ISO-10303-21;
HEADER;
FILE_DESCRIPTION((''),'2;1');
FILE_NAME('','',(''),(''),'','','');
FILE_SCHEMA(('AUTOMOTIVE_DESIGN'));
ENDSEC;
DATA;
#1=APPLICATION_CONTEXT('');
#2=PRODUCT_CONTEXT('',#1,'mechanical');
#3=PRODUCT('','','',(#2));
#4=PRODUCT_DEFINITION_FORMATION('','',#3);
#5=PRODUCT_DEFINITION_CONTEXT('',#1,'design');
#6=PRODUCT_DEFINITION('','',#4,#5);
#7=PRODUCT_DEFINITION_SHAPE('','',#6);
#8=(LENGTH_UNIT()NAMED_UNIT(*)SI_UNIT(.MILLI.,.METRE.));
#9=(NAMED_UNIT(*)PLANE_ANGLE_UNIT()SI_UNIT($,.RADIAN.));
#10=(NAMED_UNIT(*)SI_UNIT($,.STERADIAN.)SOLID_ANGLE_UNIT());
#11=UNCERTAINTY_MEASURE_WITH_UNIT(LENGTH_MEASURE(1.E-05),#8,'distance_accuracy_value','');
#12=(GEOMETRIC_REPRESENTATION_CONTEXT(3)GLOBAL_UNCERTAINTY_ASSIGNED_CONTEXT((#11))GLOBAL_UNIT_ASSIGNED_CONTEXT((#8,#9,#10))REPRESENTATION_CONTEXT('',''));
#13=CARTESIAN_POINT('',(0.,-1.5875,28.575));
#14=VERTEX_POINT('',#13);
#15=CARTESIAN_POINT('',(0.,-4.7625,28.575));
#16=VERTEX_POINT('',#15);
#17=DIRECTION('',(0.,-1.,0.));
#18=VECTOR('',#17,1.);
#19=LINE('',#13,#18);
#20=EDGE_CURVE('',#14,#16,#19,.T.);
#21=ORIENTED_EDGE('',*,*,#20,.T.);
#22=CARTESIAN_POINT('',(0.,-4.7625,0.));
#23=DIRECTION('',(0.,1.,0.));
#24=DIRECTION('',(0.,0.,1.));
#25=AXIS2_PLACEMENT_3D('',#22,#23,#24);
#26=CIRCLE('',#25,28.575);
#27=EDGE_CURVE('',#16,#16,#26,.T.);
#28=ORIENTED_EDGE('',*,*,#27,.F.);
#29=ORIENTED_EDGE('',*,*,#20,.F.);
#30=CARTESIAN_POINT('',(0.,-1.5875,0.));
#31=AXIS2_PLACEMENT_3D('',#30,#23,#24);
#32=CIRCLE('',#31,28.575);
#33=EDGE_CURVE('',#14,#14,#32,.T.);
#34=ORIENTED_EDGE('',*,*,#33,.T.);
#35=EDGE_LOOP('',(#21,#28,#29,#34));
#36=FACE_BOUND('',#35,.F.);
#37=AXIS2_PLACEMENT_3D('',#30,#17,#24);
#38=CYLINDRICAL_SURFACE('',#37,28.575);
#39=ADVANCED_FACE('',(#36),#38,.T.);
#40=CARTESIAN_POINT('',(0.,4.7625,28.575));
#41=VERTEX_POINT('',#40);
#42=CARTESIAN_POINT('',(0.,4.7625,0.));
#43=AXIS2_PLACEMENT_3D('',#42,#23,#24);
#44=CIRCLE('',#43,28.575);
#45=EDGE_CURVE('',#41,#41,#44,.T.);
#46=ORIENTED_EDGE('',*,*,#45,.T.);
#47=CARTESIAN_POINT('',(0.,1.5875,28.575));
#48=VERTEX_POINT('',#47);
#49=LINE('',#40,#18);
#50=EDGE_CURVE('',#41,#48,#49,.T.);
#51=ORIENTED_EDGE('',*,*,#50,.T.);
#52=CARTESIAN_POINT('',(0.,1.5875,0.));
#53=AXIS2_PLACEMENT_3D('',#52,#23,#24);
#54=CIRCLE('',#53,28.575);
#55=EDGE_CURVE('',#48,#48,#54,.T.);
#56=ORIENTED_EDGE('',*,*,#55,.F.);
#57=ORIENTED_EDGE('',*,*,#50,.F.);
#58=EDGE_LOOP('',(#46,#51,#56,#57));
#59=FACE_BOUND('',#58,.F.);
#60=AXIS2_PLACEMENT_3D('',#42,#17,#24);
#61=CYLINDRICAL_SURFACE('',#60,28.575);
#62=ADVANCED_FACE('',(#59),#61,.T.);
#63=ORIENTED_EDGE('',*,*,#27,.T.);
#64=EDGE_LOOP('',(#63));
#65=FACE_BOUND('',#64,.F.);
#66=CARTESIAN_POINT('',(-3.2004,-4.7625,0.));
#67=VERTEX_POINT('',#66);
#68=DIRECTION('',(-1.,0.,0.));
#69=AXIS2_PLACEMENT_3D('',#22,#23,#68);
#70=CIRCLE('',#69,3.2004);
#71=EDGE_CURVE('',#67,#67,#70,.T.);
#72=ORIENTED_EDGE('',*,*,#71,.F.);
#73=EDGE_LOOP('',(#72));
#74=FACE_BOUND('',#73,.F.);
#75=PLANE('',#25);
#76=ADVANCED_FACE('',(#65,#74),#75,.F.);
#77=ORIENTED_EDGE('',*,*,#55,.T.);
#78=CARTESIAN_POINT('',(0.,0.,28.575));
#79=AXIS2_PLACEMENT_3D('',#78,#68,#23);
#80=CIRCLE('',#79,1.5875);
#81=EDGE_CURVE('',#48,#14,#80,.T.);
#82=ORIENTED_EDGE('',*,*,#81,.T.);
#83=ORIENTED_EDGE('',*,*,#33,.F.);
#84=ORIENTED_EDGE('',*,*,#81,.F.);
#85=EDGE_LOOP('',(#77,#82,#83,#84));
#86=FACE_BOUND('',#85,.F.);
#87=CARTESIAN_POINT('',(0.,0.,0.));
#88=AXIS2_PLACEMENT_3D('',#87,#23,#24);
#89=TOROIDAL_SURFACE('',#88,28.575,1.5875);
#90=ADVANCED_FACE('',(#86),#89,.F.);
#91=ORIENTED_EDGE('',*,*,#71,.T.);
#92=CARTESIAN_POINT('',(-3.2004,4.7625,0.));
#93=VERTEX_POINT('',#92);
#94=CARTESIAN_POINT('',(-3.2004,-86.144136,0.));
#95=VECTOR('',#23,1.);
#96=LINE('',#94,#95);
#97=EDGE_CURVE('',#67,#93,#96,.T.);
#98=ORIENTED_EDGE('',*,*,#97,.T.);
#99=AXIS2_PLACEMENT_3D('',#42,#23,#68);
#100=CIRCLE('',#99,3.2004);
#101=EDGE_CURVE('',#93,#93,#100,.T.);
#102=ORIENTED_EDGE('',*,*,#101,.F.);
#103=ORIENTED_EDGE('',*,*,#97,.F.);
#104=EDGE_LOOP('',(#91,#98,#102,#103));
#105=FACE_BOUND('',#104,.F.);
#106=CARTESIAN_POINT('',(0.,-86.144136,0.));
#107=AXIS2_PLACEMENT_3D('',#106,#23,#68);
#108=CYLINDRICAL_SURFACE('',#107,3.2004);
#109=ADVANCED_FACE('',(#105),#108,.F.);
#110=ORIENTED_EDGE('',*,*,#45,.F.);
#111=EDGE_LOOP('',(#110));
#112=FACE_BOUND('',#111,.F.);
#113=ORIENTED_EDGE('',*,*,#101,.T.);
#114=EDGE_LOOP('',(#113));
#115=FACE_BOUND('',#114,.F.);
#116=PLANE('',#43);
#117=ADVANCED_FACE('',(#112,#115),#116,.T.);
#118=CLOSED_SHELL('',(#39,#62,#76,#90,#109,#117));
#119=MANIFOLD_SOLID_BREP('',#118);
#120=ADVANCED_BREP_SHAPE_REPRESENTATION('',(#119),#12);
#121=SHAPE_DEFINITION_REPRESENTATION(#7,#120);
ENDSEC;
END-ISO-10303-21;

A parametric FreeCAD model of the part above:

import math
import FreeCAD as App
import Part
import Sketcher
Q = App.Units.Quantity

doc = App.newDocument("Part")
body = doc.addObject("PartDesign::Body", "Body")

# Sketch on YZ plane
sketch1 = body.newObject("Sketcher::SketchObject", "Sketch")
sketch1.AttachmentSupport = (doc.getObject("YZ_Plane"), [""])
sketch1.MapMode = "FlatFace"
sketch1.addGeometry([
    Part.LineSegment(App.Vector(-4.8, 28.6, 0), App.Vector(-4.8, 0, 0)),  # 0
    Part.LineSegment(App.Vector(-4.8, 0, 0), App.Vector(4.8, 0, 0)),  # 1
    Part.LineSegment(App.Vector(4.8, 0, 0), App.Vector(4.8, 28.6, 0)),  # 2
    Part.LineSegment(App.Vector(4.8, 28.6, 0), App.Vector(1.6, 28.6, 0)),  # 3
    Part.ArcOfCircle(Part.Circle(App.Vector(0, 28.6, 0), App.Vector(0, 0, 1), 1.6), math.radians(180), math.radians(360)),  # 4
    Part.LineSegment(App.Vector(-1.6, 28.6, 0), App.Vector(-4.8, 28.6, 0)),  # 5
], False)
sketch1.addConstraint([
    Sketcher.Constraint("Coincident", 0, 2, 1, 1),
    Sketcher.Constraint("Coincident", 1, 2, 2, 1),
    Sketcher.Constraint("Coincident", 2, 2, 3, 1),
    Sketcher.Constraint("Coincident", 3, 2, 4, 2),
    Sketcher.Constraint("Coincident", 4, 1, 5, 1),
    Sketcher.Constraint("Coincident", 5, 2, 0, 1),
    Sketcher.Constraint("Vertical", 0),
    Sketcher.Constraint("Horizontal", 1),
    Sketcher.Constraint("Vertical", 2),
    Sketcher.Constraint("Horizontal", 3),
    Sketcher.Constraint("Horizontal", 5),
    Sketcher.Constraint("Symmetric", 0, 2, 1, 2, -1, 1),
    Sketcher.Constraint("Symmetric", 3, 2, 4, 1, -2),
    Sketcher.Constraint("Horizontal", 4, 3, 2, 2),
    Sketcher.Constraint("Radius", 4, Q("0.0625 in")),
    Sketcher.Constraint("DistanceX", 1, 1, 1, 2, Q("0.375 in")),
    Sketcher.Constraint("DistanceY", 0, 2, 0, 1, Q("1.125 in")),
])
revolution = body.newObject("PartDesign::Revolution", "Revolution")
revolution.Profile = sketch1
revolution.ReferenceAxis = (sketch1, ["H_Axis"])
revolution.Angle = 360

# Sketch on XZ plane
sketch2 = body.newObject("Sketcher::SketchObject", "Sketch001")
sketch2.AttachmentSupport = (doc.getObject("XZ_Plane"), [""])
sketch2.MapMode = "FlatFace"
sketch2.AttachmentOffset = App.Placement(App.Vector(0, 0, 0.1875 * 25.4), App.Rotation())
sketch2.addGeometry(Part.Circle(App.Vector(0, 0, 0), App.Vector(0, 0, 1), 3.2), False)
sketch2.addConstraint([
    Sketcher.Constraint("Coincident", 0, 3, -1, 1),
    Sketcher.Constraint("Diameter", 0, Q("0.252 in")),
])
doc.recompute()
hole = body.newObject("PartDesign::Hole", "Hole")
hole.Profile = sketch2
hole.ThreadType = "None"
hole.Diameter = Q("0.252 in")
hole.DepthType = "ThroughAll"

doc.recompute()
